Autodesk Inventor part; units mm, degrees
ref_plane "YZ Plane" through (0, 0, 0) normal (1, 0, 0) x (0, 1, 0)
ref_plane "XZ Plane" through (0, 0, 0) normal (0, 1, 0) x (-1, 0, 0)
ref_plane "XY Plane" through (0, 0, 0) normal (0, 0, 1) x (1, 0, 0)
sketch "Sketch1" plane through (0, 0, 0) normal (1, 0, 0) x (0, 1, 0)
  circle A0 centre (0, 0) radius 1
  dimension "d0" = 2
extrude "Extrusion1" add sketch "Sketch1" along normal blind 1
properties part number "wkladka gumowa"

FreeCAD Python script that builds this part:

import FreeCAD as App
import Part
import Sketcher

V = App.Vector

doc = App.newDocument("Part")
body = doc.addObject("PartDesign::Body", "Body")

# Sketch on YZ plane
sketch1 = doc.addObject("Sketcher::SketchObject", "Sketch")
body.addObject(sketch1)
sketch1.AttachmentSupport = (doc.YZ_Plane, [""])
sketch1.MapMode = "FlatFace"
sketch1.addGeometry(Part.Circle(V(0, 0, 0), V(0, 0, 1), 1), False)
sketch1.addConstraint(Sketcher.Constraint("Coincident", 0, 3, -1, 1))
sketch1.addConstraint(Sketcher.Constraint("Diameter", 0, 2.0))
pad1 = doc.addObject("PartDesign::Pad", "Pad")
body.addObject(pad1)
pad1.Profile = sketch1
pad1.Length = 1

doc.recompute()
